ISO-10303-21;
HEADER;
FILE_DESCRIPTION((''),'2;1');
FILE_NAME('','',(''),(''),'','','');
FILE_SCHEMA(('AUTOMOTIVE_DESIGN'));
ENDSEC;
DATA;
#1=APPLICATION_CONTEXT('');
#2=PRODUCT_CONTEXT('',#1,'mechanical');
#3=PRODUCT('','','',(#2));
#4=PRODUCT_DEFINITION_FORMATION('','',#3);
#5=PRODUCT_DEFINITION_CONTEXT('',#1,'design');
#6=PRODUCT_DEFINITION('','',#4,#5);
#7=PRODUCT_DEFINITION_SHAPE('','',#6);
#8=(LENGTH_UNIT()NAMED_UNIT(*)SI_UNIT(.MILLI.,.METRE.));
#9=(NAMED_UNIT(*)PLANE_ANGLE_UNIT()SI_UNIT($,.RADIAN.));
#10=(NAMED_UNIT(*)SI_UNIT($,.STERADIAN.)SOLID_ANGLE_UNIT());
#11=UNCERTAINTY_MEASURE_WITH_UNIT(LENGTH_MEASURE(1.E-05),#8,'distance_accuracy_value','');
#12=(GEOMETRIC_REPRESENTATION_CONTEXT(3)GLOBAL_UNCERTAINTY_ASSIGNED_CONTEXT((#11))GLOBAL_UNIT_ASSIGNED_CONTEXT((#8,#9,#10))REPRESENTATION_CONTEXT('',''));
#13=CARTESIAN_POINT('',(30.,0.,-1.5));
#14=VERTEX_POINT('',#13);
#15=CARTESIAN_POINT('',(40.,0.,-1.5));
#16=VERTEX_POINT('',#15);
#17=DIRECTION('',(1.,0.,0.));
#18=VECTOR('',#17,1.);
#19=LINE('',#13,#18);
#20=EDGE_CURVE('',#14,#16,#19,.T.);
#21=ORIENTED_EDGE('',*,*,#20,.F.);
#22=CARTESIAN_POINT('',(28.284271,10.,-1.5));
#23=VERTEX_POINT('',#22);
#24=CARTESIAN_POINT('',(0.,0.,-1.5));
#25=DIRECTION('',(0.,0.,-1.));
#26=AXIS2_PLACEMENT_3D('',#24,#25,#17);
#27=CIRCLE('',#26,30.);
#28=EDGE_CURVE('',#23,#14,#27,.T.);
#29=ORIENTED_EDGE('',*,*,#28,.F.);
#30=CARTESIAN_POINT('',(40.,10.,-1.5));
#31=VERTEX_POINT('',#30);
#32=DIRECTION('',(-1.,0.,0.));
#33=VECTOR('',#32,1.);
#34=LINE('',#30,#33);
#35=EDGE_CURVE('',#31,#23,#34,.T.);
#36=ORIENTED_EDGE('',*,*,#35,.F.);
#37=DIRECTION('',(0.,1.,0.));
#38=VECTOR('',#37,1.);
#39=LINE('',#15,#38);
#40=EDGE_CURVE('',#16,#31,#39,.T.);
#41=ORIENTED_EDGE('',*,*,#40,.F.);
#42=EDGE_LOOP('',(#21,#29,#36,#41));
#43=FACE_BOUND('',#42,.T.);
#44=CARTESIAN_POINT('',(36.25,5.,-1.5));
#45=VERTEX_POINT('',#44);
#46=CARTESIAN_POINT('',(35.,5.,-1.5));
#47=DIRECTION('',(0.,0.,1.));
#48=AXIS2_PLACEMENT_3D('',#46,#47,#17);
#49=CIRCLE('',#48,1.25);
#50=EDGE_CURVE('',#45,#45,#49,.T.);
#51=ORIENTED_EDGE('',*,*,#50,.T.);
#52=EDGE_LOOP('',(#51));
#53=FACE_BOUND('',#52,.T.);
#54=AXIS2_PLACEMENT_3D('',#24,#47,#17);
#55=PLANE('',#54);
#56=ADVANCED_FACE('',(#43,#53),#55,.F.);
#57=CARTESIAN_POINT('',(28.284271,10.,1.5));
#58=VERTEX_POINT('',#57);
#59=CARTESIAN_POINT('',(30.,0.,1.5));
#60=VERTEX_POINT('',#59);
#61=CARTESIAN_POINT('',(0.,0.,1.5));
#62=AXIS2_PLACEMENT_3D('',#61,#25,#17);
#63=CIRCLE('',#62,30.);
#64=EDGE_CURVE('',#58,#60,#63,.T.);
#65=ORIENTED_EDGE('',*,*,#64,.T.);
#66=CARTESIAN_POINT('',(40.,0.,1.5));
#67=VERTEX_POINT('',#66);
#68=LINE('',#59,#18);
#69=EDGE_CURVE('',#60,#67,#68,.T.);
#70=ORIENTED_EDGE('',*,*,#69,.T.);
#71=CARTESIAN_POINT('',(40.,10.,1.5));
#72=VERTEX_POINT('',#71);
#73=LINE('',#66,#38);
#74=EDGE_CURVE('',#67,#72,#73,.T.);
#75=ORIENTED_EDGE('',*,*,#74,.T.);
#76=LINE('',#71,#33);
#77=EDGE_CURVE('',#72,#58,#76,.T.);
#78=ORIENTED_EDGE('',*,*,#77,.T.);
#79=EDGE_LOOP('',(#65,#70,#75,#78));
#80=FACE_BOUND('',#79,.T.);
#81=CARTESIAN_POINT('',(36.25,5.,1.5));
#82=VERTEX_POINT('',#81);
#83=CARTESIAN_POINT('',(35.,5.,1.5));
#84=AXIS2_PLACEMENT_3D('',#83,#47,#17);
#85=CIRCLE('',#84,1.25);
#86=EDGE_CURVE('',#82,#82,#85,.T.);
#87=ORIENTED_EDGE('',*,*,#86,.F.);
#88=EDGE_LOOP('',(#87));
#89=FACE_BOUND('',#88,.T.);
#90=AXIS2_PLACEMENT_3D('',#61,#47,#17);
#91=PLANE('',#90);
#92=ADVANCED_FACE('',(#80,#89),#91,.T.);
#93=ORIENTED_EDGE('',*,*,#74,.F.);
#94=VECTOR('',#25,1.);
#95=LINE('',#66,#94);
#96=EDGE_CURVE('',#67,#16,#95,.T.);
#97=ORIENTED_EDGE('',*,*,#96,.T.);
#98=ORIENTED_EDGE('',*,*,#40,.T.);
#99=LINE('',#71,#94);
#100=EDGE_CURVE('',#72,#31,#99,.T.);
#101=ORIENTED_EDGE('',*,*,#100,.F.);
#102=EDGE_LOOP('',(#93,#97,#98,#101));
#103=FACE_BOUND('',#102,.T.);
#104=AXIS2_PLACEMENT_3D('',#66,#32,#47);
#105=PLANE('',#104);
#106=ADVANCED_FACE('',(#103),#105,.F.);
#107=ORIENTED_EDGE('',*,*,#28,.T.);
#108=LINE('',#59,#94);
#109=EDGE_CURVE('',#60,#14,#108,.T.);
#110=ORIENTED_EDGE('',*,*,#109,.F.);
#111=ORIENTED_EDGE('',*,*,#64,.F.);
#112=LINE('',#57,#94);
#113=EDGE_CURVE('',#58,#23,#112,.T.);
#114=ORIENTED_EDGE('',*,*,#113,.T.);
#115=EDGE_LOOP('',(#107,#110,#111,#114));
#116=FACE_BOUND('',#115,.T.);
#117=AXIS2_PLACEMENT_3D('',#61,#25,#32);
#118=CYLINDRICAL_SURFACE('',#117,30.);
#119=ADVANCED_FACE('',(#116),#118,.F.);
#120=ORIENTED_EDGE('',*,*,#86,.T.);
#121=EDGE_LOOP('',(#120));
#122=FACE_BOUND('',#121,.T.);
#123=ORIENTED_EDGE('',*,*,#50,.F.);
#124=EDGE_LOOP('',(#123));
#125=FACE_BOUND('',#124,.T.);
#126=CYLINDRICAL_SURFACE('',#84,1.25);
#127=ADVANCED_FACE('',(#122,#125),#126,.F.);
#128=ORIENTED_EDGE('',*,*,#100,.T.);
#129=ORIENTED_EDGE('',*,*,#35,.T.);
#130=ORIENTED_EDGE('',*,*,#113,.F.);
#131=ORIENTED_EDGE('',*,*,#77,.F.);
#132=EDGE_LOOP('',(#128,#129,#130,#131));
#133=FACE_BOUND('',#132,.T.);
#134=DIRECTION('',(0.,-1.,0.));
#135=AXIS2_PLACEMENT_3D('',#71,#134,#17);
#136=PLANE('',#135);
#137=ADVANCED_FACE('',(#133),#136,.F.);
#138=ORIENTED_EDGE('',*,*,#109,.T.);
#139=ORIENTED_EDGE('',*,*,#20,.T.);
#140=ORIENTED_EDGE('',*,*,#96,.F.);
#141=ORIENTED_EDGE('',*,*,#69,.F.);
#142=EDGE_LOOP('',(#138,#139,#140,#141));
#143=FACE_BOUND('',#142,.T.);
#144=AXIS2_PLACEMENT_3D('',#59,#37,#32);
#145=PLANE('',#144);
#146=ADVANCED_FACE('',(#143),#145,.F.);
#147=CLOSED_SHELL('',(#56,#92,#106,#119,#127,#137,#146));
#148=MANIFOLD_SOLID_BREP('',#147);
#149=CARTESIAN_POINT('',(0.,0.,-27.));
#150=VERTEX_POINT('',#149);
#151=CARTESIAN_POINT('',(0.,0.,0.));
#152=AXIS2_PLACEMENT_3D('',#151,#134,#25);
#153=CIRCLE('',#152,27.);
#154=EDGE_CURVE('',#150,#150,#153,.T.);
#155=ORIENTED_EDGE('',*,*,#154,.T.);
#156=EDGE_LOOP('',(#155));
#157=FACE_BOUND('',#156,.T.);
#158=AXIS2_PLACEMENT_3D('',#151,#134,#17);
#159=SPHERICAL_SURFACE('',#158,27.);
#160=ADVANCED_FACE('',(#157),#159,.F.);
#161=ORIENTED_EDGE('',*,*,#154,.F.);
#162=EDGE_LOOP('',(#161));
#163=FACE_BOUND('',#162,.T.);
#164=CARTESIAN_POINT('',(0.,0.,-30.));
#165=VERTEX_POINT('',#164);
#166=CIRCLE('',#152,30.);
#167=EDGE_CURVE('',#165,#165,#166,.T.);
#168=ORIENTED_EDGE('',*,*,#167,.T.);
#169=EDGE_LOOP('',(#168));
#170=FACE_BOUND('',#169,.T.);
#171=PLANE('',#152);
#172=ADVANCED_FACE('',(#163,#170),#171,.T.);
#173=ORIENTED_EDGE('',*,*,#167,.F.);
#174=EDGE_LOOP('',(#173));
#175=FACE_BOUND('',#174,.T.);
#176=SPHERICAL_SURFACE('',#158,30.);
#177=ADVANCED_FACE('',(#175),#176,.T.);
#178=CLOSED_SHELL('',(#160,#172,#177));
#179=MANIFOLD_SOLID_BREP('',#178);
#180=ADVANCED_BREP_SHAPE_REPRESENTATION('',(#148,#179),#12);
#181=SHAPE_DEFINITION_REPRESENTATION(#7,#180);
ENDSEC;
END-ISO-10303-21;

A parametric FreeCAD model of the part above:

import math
import FreeCAD as App
import Part
import Sketcher
from FreeCAD import Vector
Q = App.Units.Quantity


def faces_at(feature, points):
    """Names of the faces that lie closest to the given points."""
    faces = feature.Shape.Faces
    near = lambda p: min(range(len(faces)), key=lambda i: faces[i].distToShape(Part.Vertex(*p))[0])
    return sorted({f"Face{near(p) + 1}" for p in points})


def add_polygon(sketch, points):
    """Adds a closed chain of lines whose ends are joined by coincident constraints."""
    first, n = sketch.GeometryCount, len(points)
    for a, b in zip(points, points[1:] + points[:1]):
        sketch.addGeometry(Part.LineSegment(App.Vector(*a, 0), App.Vector(*b, 0)), False)
    for i in range(n):
        sketch.addConstraint(Sketcher.Constraint("Coincident", first + i, 2, first + (i + 1) % n, 1))

doc = App.newDocument("Part")
body = doc.addObject("PartDesign::Body", "Body")

sketch1 = body.newObject("Sketcher::SketchObject", "Sketch")
sketch1.AttachmentSupport = (doc.getObject("XY_Plane"), [""])
sketch1.MapMode = "FlatFace"
sketch1.addGeometry(Part.LineSegment(Vector(0, 30, 0), Vector(0, 0, 0)), False)
sketch1.addGeometry(Part.LineSegment(Vector(0, 0, 0), Vector(30, 0, 0)), False)
sketch1.addGeometry(Part.ArcOfCircle(Part.Circle(Vector(0, 0, 0), Vector(0, 0, 1), 30), math.radians(0), math.radians(90)), False)
sketch1.addConstraint(Sketcher.Constraint("Coincident", 0, 2, 1, 1))
sketch1.addConstraint(Sketcher.Constraint("Coincident", 1, 2, 2, 1))
sketch1.addConstraint(Sketcher.Constraint("Coincident", 2, 2, 0, 1))
sketch1.addConstraint(Sketcher.Constraint("Vertical", 0))
sketch1.addConstraint(Sketcher.Constraint("Horizontal", 1))
sketch1.addConstraint(Sketcher.Constraint("Coincident", 2, 3, -1, 1))
sketch1.addConstraint(Sketcher.Constraint("Coincident", 0, 2, -1, 1))
sketch1.addConstraint(Sketcher.Constraint("Radius", 2, Q("30 mm")))
revolution = body.newObject("PartDesign::Revolution", "Revolution")
revolution.Profile = sketch1
revolution.ReferenceAxis = (sketch1, ["V_Axis"])
revolution.Angle = 360
doc.recompute()

thickness = body.newObject("PartDesign::Thickness", "Thickness")
thickness.Base = (revolution, faces_at(revolution, [(0, 0, 0)]))
thickness.Value = 3
thickness.Reversed = True
thickness.Join = "Intersection"
body2 = doc.addObject("PartDesign::Body", "Body001")

sketch2 = body2.newObject("Sketcher::SketchObject", "Sketch001")
sketch2.AttachmentSupport = (doc.getObject("XY_Plane001"), [""])
sketch2.MapMode = "FlatFace"
sketch2.addGeometry(Part.LineSegment(Vector(30, 0, 0), Vector(40, 0, 0)), False)
sketch2.addGeometry(Part.LineSegment(Vector(40, 0, 0), Vector(40, 10, 0)), False)
sketch2.addGeometry(Part.LineSegment(Vector(40, 10, 0), Vector(28, 10, 0)), False)
sketch2.addGeometry(Part.ArcOfCircle(Part.Circle(Vector(0, 0, 0), Vector(0, 0, 1), 30), math.radians(0), math.radians(19.47)), False)
sketch2.addConstraint(Sketcher.Constraint("Coincident", 0, 2, 1, 1))
sketch2.addConstraint(Sketcher.Constraint("Coincident", 1, 2, 2, 1))
sketch2.addConstraint(Sketcher.Constraint("Coincident", 2, 2, 3, 2))
sketch2.addConstraint(Sketcher.Constraint("Coincident", 3, 1, 0, 1))
sketch2.addConstraint(Sketcher.Constraint("Horizontal", 0))
sketch2.addConstraint(Sketcher.Constraint("Vertical", 1))
sketch2.addConstraint(Sketcher.Constraint("Horizontal", 2))
sketch2.addConstraint(Sketcher.Constraint("Coincident", 3, 3, -1, 1))
sketch2.addConstraint(Sketcher.Constraint("PointOnObject", 0, 2, -1))
sketch2.addConstraint(Sketcher.Constraint("Equal", 0, 1))
sketch2.addConstraint(Sketcher.Constraint("Radius", 3, Q("30 mm")))
sketch2.addConstraint(Sketcher.Constraint("DistanceX", 0, 1, 0, 2, Q("10 mm")))
pad1 = body2.newObject("PartDesign::Pad", "Pad")
pad1.Profile = sketch2
pad1.Length = 3
pad1.Midplane = True

sketch3 = body2.newObject("Sketcher::SketchObject", "Sketch002")
sketch3.AttachmentSupport = (doc.getObject("YZ_Plane001"), [""])
sketch3.MapMode = "FlatFace"
sketch3.AttachmentOffset = App.Placement(Vector(0, 0, 35), App.Rotation())
add_polygon(sketch3, [(5, -30), (5, 1.5), (3.8, 1.5), (3.8, -30)])
sketch3.addGeometry(Part.LineSegment(Vector(5, 1.5, 0), Vector(5, -30, 0)), True)
sketch3.addConstraint(Sketcher.Constraint("Vertical", 0))
sketch3.addConstraint(Sketcher.Constraint("Horizontal", 1))
sketch3.addConstraint(Sketcher.Constraint("Vertical", 2))
sketch3.addConstraint(Sketcher.Constraint("Horizontal", 3))
sketch3.addConstraint(Sketcher.Constraint("Vertical", 4))
sketch3.addConstraint(Sketcher.Constraint("Coincident", 4, 1, 0, 2))
sketch3.addConstraint(Sketcher.Constraint("Horizontal", 2, 2, 4, 2))
sketch3.addConstraint(Sketcher.Constraint("DistanceY", 0, 1, 0, 2, Q("31.5 mm")))
sketch3.addConstraint(Sketcher.Constraint("DistanceX", -1, 1, 0, 2, Q("5 mm")))
sketch3.addConstraint(Sketcher.Constraint("DistanceY", 2, 2, -1, 1, Q("30 mm")))
sketch3.addConstraint(Sketcher.Constraint("DistanceX", 1, 2, 1, 1, Q("1.25 mm")))
groove = body2.newObject("PartDesign::Groove", "Groove")
groove.Profile = sketch3
groove.ReferenceAxis = (sketch3, ["Axis0"])
groove.Angle = 360

doc.recompute()
